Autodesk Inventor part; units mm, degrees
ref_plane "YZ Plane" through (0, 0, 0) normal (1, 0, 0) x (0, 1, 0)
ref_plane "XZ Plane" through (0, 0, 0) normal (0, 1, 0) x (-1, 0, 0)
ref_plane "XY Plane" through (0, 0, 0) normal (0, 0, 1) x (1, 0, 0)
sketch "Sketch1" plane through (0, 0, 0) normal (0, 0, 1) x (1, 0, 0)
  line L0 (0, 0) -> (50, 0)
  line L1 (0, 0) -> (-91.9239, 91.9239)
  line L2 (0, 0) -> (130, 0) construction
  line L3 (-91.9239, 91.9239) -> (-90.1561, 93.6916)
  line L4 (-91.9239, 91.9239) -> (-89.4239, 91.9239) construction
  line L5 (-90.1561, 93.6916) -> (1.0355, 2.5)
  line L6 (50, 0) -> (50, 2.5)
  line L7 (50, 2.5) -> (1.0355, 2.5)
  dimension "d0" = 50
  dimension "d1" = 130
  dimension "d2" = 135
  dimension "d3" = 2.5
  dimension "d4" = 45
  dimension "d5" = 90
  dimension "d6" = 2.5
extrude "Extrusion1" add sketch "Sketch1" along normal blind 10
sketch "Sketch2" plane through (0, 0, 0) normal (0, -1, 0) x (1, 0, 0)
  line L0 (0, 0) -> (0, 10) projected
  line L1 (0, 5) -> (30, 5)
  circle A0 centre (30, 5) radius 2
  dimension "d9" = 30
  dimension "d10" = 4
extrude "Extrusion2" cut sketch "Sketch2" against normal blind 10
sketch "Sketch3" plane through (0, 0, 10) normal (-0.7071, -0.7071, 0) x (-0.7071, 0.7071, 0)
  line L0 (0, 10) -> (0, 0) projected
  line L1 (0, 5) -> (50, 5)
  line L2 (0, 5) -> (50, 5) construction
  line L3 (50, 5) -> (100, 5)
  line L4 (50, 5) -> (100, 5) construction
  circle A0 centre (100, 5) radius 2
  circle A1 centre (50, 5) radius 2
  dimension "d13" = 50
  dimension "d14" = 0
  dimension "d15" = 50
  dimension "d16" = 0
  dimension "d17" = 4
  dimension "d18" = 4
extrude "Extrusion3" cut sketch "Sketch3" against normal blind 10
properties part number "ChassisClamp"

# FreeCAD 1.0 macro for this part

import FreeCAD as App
import Part
import Sketcher
from FreeCAD import Vector
Q = App.Units.Quantity

doc = App.newDocument("Part")
body = doc.addObject("PartDesign::Body", "Body")

sketch1 = body.newObject("Sketcher::SketchObject", "Sketch")
sketch1.AttachmentSupport = (doc.getObject("XY_Plane"), [""])
sketch1.MapMode = "FlatFace"
sketch1.addGeometry(Part.LineSegment(Vector(-91.9239, 91.9239, 0), Vector(0, 0, 0)), False)
sketch1.addGeometry(Part.LineSegment(Vector(0, 0, 0), Vector(50, 0, 0)), False)
sketch1.addGeometry(Part.LineSegment(Vector(50, 0, 0), Vector(50, 2.5, 0)), False)
sketch1.addGeometry(Part.LineSegment(Vector(50, 2.5, 0), Vector(1.0355, 2.5, 0)), False)
sketch1.addGeometry(Part.LineSegment(Vector(1.0355, 2.5, 0), Vector(-90.1561, 93.6916, 0)), False)
sketch1.addGeometry(Part.LineSegment(Vector(-90.1561, 93.6916, 0), Vector(-91.9239, 91.9239, 0)), False)
sketch1.addConstraint(Sketcher.Constraint("Coincident", 0, 2, 1, 1))
sketch1.addConstraint(Sketcher.Constraint("Coincident", 1, 2, 2, 1))
sketch1.addConstraint(Sketcher.Constraint("Coincident", 2, 2, 3, 1))
sketch1.addConstraint(Sketcher.Constraint("Coincident", 3, 2, 4, 1))
sketch1.addConstraint(Sketcher.Constraint("Coincident", 4, 2, 5, 1))
sketch1.addConstraint(Sketcher.Constraint("Coincident", 5, 2, 0, 1))
sketch1.addConstraint(Sketcher.Constraint("Horizontal", 1))
sketch1.addConstraint(Sketcher.Constraint("Vertical", 2))
sketch1.addConstraint(Sketcher.Constraint("Horizontal", 3))
sketch1.addConstraint(Sketcher.Constraint("Coincident", 0, 2, -1, 1))
sketch1.addConstraint(Sketcher.Constraint("Parallel", 0, 4))
sketch1.addConstraint(Sketcher.Constraint("Perpendicular", 4, 5))
sketch1.addConstraint(Sketcher.Constraint("DistanceX", 1, 1, 1, 2, 50.0))
sketch1.addConstraint(Sketcher.Constraint("Angle", 0, Q("-45 deg")))
sketch1.addConstraint(Sketcher.Constraint("Distance", 0, 130.0))
sketch1.addConstraint(Sketcher.Constraint("DistanceY", 2, 1, 2, 2, 2.5))
sketch1.addConstraint(Sketcher.Constraint("Distance", 5, 2.5))
pad1 = body.newObject("PartDesign::Pad", "Pad")
pad1.Profile = sketch1
pad1.Length = 10

sketch2 = body.newObject("Sketcher::SketchObject", "Sketch001")
sketch2.AttachmentSupport = (doc.getObject("XZ_Plane"), [""])
sketch2.MapMode = "FlatFace"
sketch2.addGeometry(Part.Circle(Vector(30, 5, 0), Vector(0, 0, 1), 2), False)
sketch2.addConstraint(Sketcher.Constraint("Diameter", 0, 4.0))
sketch2.addConstraint(Sketcher.Constraint("DistanceX", -1, 1, 0, 3, 30.0))
sketch2.addConstraint(Sketcher.Constraint("DistanceY", -1, 1, 0, 3, 5.0))
pocket1 = body.newObject("PartDesign::Pocket", "Pocket")
pocket1.Profile = sketch2
pocket1.Length = 10

sketch3 = body.newObject("Sketcher::SketchObject", "Sketch002")
sketch3.Placement = App.Placement(Vector(0, 0, 10), App.Rotation(Vector(-0.707106781, 0.707106781, 0), Vector(0, 0, -0.999999999), Vector(-0.707106781, -0.707106781, 0), "ZXY"))
sketch3.addGeometry(Part.Circle(Vector(50, 5, 0), Vector(0, 0, 1), 2), False)
sketch3.addGeometry(Part.Circle(Vector(100, 5, 0), Vector(0, 0, 1), 2), False)
sketch3.addConstraint(Sketcher.Constraint("Equal", 0, 1))
sketch3.addConstraint(Sketcher.Constraint("Horizontal", 0, 3, 1, 3))
sketch3.addConstraint(Sketcher.Constraint("Diameter", 0, 4.0))
sketch3.addConstraint(Sketcher.Constraint("DistanceX", -1, 1, 0, 3, 50.0))
sketch3.addConstraint(Sketcher.Constraint("DistanceX", 0, 3, 1, 3, 50.0))
sketch3.addConstraint(Sketcher.Constraint("DistanceY", -1, 1, 0, 3, 5.0))
pocket2 = body.newObject("PartDesign::Pocket", "Pocket001")
pocket2.Profile = sketch3
pocket2.Length = 10

doc.recompute()
